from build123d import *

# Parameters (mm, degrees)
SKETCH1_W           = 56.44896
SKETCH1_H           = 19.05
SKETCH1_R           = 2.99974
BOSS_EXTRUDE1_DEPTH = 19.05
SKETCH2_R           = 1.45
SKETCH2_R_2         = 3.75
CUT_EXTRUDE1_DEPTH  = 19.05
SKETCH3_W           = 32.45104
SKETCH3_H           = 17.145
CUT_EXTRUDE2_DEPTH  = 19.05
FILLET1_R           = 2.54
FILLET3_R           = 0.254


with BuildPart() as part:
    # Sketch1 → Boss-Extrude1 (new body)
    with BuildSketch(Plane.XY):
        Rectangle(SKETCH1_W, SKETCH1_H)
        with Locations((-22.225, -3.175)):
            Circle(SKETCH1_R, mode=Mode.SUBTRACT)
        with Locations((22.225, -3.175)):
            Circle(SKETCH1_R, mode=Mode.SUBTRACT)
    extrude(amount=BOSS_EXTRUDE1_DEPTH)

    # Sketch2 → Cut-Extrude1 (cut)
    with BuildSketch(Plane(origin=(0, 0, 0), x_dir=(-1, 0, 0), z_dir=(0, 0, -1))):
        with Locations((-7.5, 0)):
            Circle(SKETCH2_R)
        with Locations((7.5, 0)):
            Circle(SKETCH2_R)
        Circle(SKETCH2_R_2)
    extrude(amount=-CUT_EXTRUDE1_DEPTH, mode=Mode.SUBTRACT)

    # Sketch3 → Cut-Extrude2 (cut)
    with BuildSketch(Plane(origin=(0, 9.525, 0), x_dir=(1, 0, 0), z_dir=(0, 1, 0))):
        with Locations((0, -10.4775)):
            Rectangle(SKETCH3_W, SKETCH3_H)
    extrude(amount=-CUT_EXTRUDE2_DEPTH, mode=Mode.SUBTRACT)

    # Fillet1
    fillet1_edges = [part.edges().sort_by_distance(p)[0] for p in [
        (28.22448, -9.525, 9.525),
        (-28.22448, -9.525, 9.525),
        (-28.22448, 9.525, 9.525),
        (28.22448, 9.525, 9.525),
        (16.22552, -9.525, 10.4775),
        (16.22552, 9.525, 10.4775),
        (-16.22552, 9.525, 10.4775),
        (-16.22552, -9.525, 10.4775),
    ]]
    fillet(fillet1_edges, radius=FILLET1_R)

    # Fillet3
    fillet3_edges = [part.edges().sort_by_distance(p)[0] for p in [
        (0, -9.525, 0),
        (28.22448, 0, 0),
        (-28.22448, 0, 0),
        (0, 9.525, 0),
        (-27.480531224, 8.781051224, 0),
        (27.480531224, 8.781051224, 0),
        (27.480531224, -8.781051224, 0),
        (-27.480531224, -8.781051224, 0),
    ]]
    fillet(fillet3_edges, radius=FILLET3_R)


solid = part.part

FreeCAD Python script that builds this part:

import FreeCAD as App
import Part
import Sketcher
from FreeCAD import Vector
Q = App.Units.Quantity


def edges_at(feature, points):
    """Names of the edges that pass closest to the given points."""
    edges = feature.Shape.Edges
    near = lambda p: min(range(len(edges)), key=lambda i: edges[i].distToShape(Part.Vertex(*p))[0])
    return sorted({f"Edge{near(p) + 1}" for p in points})


def add_polygon(sketch, points):
    """Adds a closed chain of lines whose ends are joined by coincident constraints."""
    first, n = sketch.GeometryCount, len(points)
    for a, b in zip(points, points[1:] + points[:1]):
        sketch.addGeometry(Part.LineSegment(App.Vector(*a, 0), App.Vector(*b, 0)), False)
    for i in range(n):
        sketch.addConstraint(Sketcher.Constraint("Coincident", first + i, 2, first + (i + 1) % n, 1))

doc = App.newDocument("Part")
params = doc.addObject("Spreadsheet::Sheet", "Params")
for row, (alias, value) in enumerate([
    ("sketch1_height", "0.75 in"),
    ("pad1_length", "0.75 in"),
    ("pocket1_length", "0.75 in"),
    ("sketch3_height", "0.675 in"),
    ("pocket2_length", "0.75 in"),
    ("fillet_radius", "0.1 in"),
    ("fillet2_radius", "0.01 in"),
], start=1):
    params.set(f"A{row}", alias)
    params.set(f"B{row}", "=" + value)
    params.setAlias(f"B{row}", alias)

body = doc.addObject("PartDesign::Body", "Body")

# Sketch on XY plane
sketch1 = doc.addObject("Sketcher::SketchObject", "Sketch")
body.addObject(sketch1)
sketch1.AttachmentSupport = (doc.XY_Plane, [""])
sketch1.MapMode = "FlatFace"
add_polygon(sketch1, [(-28.2, 9.5), (-28.2, -9.5), (28.2, -9.5), (28.2, 9.5)])  # lines 0-3
sketch1.addGeometry(Part.Circle(Vector(-22.2, -3.2, 0), Vector(0, 0, 1), 3), False)  # 4
sketch1.addGeometry(Part.Circle(Vector(22.2, -3.2, 0), Vector(0, 0, 1), 3), False)  # 5
sketch1.addConstraint([
    Sketcher.Constraint("Vertical", 0),
    Sketcher.Constraint("Horizontal", 1),
    Sketcher.Constraint("Vertical", 2),
    Sketcher.Constraint("Horizontal", 3),
    Sketcher.Constraint("Equal", 4, 5),
    Sketcher.Constraint("Symmetric", 0, 2, 2, 2, -1, 1),
    Sketcher.Constraint("Symmetric", 4, 3, 5, 3, -2),
    Sketcher.Constraint("Diameter", 4, Q("0.2362 in")),
    Sketcher.Constraint("DistanceY", 0, 2, 0, 1, Q("0.75 in")),
    Sketcher.Constraint("DistanceY", 5, 3, 2, 2, Q("0.5 in")),
    Sketcher.Constraint("DistanceX", 4, 3, 5, 3, Q("1.75 in")),
    Sketcher.Constraint("DistanceX", 1, 1, 1, 2, Q("2.2224 in")),
])
sketch1.setExpression("Constraints[12]", "Params.sketch1_height")
pad1 = doc.addObject("PartDesign::Pad", "Pad")
body.addObject(pad1)
pad1.Profile = sketch1
pad1.setExpression("Length", "Params.pad1_length")

# Sketch on XY plane
sketch2 = doc.addObject("Sketcher::SketchObject", "Sketch001")
body.addObject(sketch2)
sketch2.AttachmentSupport = (doc.XY_Plane, [""])
sketch2.MapMode = "FlatFace"
sketch2.addGeometry([
    Part.Circle(Vector(7.5, 0, 0), Vector(0, 0, 1), 1.4),
    Part.Circle(Vector(-7.5, 0, 0), Vector(0, 0, 1), 1.4),
    Part.Circle(Vector(0, 0, 0), Vector(0, 0, 1), 3.8),
], False)
sketch2.addConstraint([
    Sketcher.Constraint("Coincident", 2, 3, -1, 1),
    Sketcher.Constraint("Equal", 0, 1),
    Sketcher.Constraint("Symmetric", 0, 3, 1, 3, -1, 1),
    Sketcher.Constraint("PointOnObject", 0, 3, -1),
    Sketcher.Constraint("Diameter", 0, Q("2.9 mm")),
    Sketcher.Constraint("Diameter", 2, Q("7.5 mm")),
    Sketcher.Constraint("DistanceX", -1, 1, 0, 3, Q("7.5 mm")),
])
pocket1 = doc.addObject("PartDesign::Pocket", "Pocket")
body.addObject(pocket1)
pocket1.Profile = sketch2
pocket1.setExpression("Length", "Params.pocket1_length")
pocket1.Reversed = True

# Sketch on XZ plane
sketch3 = doc.addObject("Sketcher::SketchObject", "Sketch002")
body.addObject(sketch3)
sketch3.AttachmentSupport = (doc.XZ_Plane, [""])
sketch3.MapMode = "FlatFace"
sketch3.AttachmentOffset = App.Placement(Vector(0, 0, -0.375 * 25.4), App.Rotation())
add_polygon(sketch3, [(-16, 2), (-16, 19), (16, 19), (16, 2)])  # lines 0-3
sketch3.addConstraint([
    Sketcher.Constraint("Vertical", 0),
    Sketcher.Constraint("Horizontal", 1),
    Sketcher.Constraint("Vertical", 2),
    Sketcher.Constraint("Horizontal", 3),
    Sketcher.Constraint("DistanceY", 0, 1, 0, 2, Q("0.675 in")),
    Sketcher.Constraint("DistanceY", -1, 1, 0, 2, Q("0.75 in")),
    Sketcher.Constraint("DistanceX", 1, 1, 1, 2, Q("1.2776 in")),
    Sketcher.Constraint("DistanceX", 0, 2, -1, 1, Q("0.6388 in")),
])
sketch3.setExpression("Constraints[8]", "Params.sketch3_height")
pocket2 = doc.addObject("PartDesign::Pocket", "Pocket001")
body.addObject(pocket2)
pocket2.Profile = sketch3
pocket2.setExpression("Length", "Params.pocket2_length")
pocket2.Reversed = True
doc.recompute()

fillet = doc.addObject("PartDesign::Fillet", "Fillet")
body.addObject(fillet)
fillet.Base = (pocket2, edges_at(pocket2, [
    (28.224, -9.525, 9.525),
    (-28.224, -9.525, 9.525),
    (-28.224, 9.525, 9.525),
    (28.224, 9.525, 9.525),
    (16.226, -9.525, 10.477),
    (16.226, 9.525, 10.477),
    (-16.226, 9.525, 10.477),
    (-16.226, -9.525, 10.477),
]))
fillet.setExpression("Radius", "Params.fillet_radius")
doc.recompute()

fillet2 = doc.addObject("PartDesign::Fillet", "Fillet001")
body.addObject(fillet2)
fillet2.Base = (fillet, edges_at(fillet, [
    (0, -9.525, 0),
    (28.224, 0, 0),
    (-28.224, 0, 0),
    (0, 9.525, 0),
    (-27.481, 8.781, 0),
    (27.481, 8.781, 0),
    (27.481, -8.781, 0),
    (-27.481, -8.781, 0),
]))
fillet2.setExpression("Radius", "Params.fillet2_radius")

doc.recompute()
